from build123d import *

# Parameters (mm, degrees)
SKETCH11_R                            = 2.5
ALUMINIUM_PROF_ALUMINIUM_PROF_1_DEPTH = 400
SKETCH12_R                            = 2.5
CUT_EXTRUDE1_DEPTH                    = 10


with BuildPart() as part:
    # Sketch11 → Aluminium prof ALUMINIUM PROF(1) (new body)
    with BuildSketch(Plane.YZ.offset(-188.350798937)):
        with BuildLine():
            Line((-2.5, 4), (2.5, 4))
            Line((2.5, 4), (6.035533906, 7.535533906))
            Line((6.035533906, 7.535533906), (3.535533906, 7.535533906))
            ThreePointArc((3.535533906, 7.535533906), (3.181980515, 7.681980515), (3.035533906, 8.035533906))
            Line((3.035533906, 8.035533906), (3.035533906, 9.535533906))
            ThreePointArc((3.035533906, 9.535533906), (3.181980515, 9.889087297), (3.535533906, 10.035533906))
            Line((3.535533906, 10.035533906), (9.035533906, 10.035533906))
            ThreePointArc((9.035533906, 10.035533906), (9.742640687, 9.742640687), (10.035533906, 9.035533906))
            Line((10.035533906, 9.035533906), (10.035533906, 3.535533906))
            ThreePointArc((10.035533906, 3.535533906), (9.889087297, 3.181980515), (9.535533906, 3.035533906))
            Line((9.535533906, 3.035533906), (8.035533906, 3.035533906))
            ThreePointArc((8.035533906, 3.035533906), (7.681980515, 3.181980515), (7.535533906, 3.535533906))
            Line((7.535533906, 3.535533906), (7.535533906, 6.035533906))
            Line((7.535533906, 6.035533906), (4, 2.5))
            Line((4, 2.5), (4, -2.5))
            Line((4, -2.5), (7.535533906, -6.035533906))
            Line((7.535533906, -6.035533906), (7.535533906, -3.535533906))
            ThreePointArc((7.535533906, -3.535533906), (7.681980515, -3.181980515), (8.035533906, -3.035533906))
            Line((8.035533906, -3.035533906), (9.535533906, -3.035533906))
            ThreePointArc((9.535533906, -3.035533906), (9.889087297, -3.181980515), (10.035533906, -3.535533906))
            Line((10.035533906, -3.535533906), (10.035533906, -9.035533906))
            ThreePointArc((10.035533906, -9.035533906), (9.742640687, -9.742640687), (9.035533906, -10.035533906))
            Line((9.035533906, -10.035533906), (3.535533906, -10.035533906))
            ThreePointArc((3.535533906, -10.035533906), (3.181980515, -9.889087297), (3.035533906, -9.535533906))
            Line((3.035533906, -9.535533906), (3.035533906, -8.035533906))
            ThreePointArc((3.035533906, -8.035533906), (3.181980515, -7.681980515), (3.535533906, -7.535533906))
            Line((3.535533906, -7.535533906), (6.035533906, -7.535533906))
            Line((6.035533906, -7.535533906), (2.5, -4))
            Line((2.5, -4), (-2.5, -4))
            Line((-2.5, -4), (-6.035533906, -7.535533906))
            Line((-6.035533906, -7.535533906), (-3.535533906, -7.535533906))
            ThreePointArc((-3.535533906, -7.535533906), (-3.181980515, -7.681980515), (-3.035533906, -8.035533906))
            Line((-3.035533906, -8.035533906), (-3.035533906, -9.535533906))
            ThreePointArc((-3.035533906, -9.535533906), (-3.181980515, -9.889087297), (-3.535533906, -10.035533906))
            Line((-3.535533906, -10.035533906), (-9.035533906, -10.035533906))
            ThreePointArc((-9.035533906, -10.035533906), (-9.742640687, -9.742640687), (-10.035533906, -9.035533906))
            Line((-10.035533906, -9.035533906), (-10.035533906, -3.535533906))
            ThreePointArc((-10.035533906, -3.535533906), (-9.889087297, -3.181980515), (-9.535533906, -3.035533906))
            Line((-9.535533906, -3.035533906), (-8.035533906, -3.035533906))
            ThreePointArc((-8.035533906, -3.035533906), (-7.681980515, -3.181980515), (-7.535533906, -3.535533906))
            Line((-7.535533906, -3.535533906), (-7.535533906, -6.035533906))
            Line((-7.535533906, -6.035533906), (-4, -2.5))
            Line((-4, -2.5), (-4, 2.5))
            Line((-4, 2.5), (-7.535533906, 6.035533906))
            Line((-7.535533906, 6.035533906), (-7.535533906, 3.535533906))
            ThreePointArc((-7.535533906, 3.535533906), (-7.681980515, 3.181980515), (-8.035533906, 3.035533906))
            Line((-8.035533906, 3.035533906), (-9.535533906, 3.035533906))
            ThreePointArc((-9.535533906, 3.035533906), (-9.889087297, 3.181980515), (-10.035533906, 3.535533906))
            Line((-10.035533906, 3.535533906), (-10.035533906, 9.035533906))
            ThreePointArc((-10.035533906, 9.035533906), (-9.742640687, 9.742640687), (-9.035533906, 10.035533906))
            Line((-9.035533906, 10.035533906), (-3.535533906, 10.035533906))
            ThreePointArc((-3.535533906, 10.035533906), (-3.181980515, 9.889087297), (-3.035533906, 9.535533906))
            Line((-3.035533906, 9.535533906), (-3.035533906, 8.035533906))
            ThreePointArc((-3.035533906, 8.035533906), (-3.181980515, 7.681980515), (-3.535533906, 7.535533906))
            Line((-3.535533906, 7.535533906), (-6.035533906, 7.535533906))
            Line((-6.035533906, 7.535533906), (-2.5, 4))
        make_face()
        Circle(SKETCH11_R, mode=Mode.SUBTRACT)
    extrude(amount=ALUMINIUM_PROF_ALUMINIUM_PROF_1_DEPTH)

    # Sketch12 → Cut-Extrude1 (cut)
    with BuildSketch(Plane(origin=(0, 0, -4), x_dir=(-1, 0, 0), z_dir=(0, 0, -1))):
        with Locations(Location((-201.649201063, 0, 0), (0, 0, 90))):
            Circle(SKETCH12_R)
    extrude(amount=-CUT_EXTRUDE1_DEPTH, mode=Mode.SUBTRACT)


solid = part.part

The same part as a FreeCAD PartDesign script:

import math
import FreeCAD as App
import Part
import Sketcher

V = App.Vector
Q = App.Units.Quantity

doc = App.newDocument("Part")
body = doc.addObject("PartDesign::Body", "Body")

sketch1 = body.newObject("Sketcher::SketchObject", "Sketch")
sketch1.AttachmentSupport = (doc.getObject("YZ_Plane"), [""])
sketch1.MapMode = "FlatFace"
sketch1.AttachmentOffset = App.Placement(V(0, 0, -188.350799), App.Rotation())
sketch1.addGeometry([
    Part.LineSegment(V(2.5, 4, 0), V(-2.5, 4, 0)),
    Part.LineSegment(V(-2.5, 4, 0), V(-6.04, 7.54, 0)),
    Part.LineSegment(V(-6.04, 7.54, 0), V(-3.54, 7.54, 0)),
    Part.ArcOfCircle(Part.Circle(V(-3.54, 8.04, 0), V(0, 0, 1), 0.5), math.radians(-90), math.radians(0)),
    Part.LineSegment(V(-3.04, 8.04, 0), V(-3.04, 9.54, 0)),
    Part.ArcOfCircle(Part.Circle(V(-3.54, 9.54, 0), V(0, 0, 1), 0.5), math.radians(0), math.radians(90)),
    Part.LineSegment(V(-3.54, 10.04, 0), V(-9.04, 10.04, 0)),
    Part.ArcOfCircle(Part.Circle(V(-9.04, 9.04, 0), V(0, 0, 1), 1), math.radians(90), math.radians(180)),
    Part.LineSegment(V(-10.04, 9.04, 0), V(-10.04, 3.54, 0)),
    Part.ArcOfCircle(Part.Circle(V(-9.54, 3.54, 0), V(0, 0, 1), 0.5), math.radians(180), math.radians(270)),
    Part.LineSegment(V(-9.54, 3.04, 0), V(-8.04, 3.04, 0)),
    Part.ArcOfCircle(Part.Circle(V(-8.04, 3.54, 0), V(0, 0, 1), 0.5), math.radians(-90), math.radians(0)),
    Part.LineSegment(V(-7.54, 3.54, 0), V(-7.54, 6.04, 0)),
    Part.LineSegment(V(-7.54, 6.04, 0), V(-4, 2.5, 0)),
    Part.LineSegment(V(-4, 2.5, 0), V(-4, -2.5, 0)),
    Part.LineSegment(V(-4, -2.5, 0), V(-7.54, -6.04, 0)),
    Part.LineSegment(V(-7.54, -6.04, 0), V(-7.54, -3.54, 0)),
    Part.ArcOfCircle(Part.Circle(V(-8.04, -3.54, 0), V(0, 0, 1), 0.5), math.radians(0), math.radians(90)),
    Part.LineSegment(V(-8.04, -3.04, 0), V(-9.54, -3.04, 0)),
    Part.ArcOfCircle(Part.Circle(V(-9.54, -3.54, 0), V(0, 0, 1), 0.5), math.radians(90), math.radians(180)),
    Part.LineSegment(V(-10.04, -3.54, 0), V(-10.04, -9.04, 0)),
    Part.ArcOfCircle(Part.Circle(V(-9.04, -9.04, 0), V(0, 0, 1), 1), math.radians(-180), math.radians(-90)),
    Part.LineSegment(V(-9.04, -10.04, 0), V(-3.54, -10.04, 0)),
    Part.ArcOfCircle(Part.Circle(V(-3.54, -9.54, 0), V(0, 0, 1), 0.5), math.radians(-90), math.radians(0)),
    Part.LineSegment(V(-3.04, -9.54, 0), V(-3.04, -8.04, 0)),
    Part.ArcOfCircle(Part.Circle(V(-3.54, -8.04, 0), V(0, 0, 1), 0.5), math.radians(0), math.radians(90)),
    Part.LineSegment(V(-3.54, -7.54, 0), V(-6.04, -7.54, 0)),
    Part.LineSegment(V(-6.04, -7.54, 0), V(-2.5, -4, 0)),
    Part.LineSegment(V(-2.5, -4, 0), V(2.5, -4, 0)),
    Part.LineSegment(V(2.5, -4, 0), V(6.04, -7.54, 0)),
    Part.LineSegment(V(6.04, -7.54, 0), V(3.54, -7.54, 0)),
    Part.ArcOfCircle(Part.Circle(V(3.54, -8.04, 0), V(0, 0, 1), 0.5), math.radians(90), math.radians(180)),
    Part.LineSegment(V(3.04, -8.04, 0), V(3.04, -9.54, 0)),
    Part.ArcOfCircle(Part.Circle(V(3.54, -9.54, 0), V(0, 0, 1), 0.5), math.radians(180), math.radians(270)),
    Part.LineSegment(V(3.54, -10.04, 0), V(9.04, -10.04, 0)),
    Part.ArcOfCircle(Part.Circle(V(9.04, -9.04, 0), V(0, 0, 1), 1), math.radians(-90), math.radians(0)),
    Part.LineSegment(V(10.04, -9.04, 0), V(10.04, -3.54, 0)),
    Part.ArcOfCircle(Part.Circle(V(9.54, -3.54, 0), V(0, 0, 1), 0.5), math.radians(0), math.radians(90)),
    Part.LineSegment(V(9.54, -3.04, 0), V(8.04, -3.04, 0)),
    Part.ArcOfCircle(Part.Circle(V(8.04, -3.54, 0), V(0, 0, 1), 0.5), math.radians(90), math.radians(180)),
    Part.LineSegment(V(7.54, -3.54, 0), V(7.54, -6.04, 0)),
    Part.LineSegment(V(7.54, -6.04, 0), V(4, -2.5, 0)),
    Part.LineSegment(V(4, -2.5, 0), V(4, 2.5, 0)),
    Part.LineSegment(V(4, 2.5, 0), V(7.54, 6.04, 0)),
    Part.LineSegment(V(7.54, 6.04, 0), V(7.54, 3.54, 0)),
    Part.ArcOfCircle(Part.Circle(V(8.04, 3.54, 0), V(0, 0, 1), 0.5), math.radians(180), math.radians(270)),
    Part.LineSegment(V(8.04, 3.04, 0), V(9.54, 3.04, 0)),
    Part.ArcOfCircle(Part.Circle(V(9.54, 3.54, 0), V(0, 0, 1), 0.5), math.radians(-90), math.radians(0)),
    Part.LineSegment(V(10.04, 3.54, 0), V(10.04, 9.04, 0)),
    Part.ArcOfCircle(Part.Circle(V(9.04, 9.04, 0), V(0, 0, 1), 1), math.radians(0), math.radians(90)),
    Part.LineSegment(V(9.04, 10.04, 0), V(3.54, 10.04, 0)),
    Part.ArcOfCircle(Part.Circle(V(3.54, 9.54, 0), V(0, 0, 1), 0.5), math.radians(90), math.radians(180)),
    Part.LineSegment(V(3.04, 9.54, 0), V(3.04, 8.04, 0)),
    Part.ArcOfCircle(Part.Circle(V(3.54, 8.04, 0), V(0, 0, 1), 0.5), math.radians(180), math.radians(270)),
    Part.LineSegment(V(3.54, 7.54, 0), V(6.04, 7.54, 0)),
    Part.LineSegment(V(6.04, 7.54, 0), V(2.5, 4, 0)),
    Part.Circle(V(0, 0, 0), V(0, 0, 1), 2.5),
], False)
sketch1.addConstraint([
    Sketcher.Constraint("Coincident", 0, 2, 1, 1),
    Sketcher.Constraint("Coincident", 1, 2, 2, 1),
    Sketcher.Constraint("Tangent", 2, 2, 3, 1),
    Sketcher.Constraint("Tangent", 3, 2, 4, 1),
    Sketcher.Constraint("Tangent", 4, 2, 5, 1),
    Sketcher.Constraint("Tangent", 5, 2, 6, 1),
    Sketcher.Constraint("Tangent", 6, 2, 7, 1),
    Sketcher.Constraint("Tangent", 7, 2, 8, 1),
    Sketcher.Constraint("Tangent", 8, 2, 9, 1),
    Sketcher.Constraint("Tangent", 9, 2, 10, 1),
    Sketcher.Constraint("Tangent", 10, 2, 11, 1),
    Sketcher.Constraint("Tangent", 11, 2, 12, 1),
    Sketcher.Constraint("Coincident", 12, 2, 13, 1),
    Sketcher.Constraint("Coincident", 13, 2, 14, 1),
    Sketcher.Constraint("Coincident", 14, 2, 15, 1),
    Sketcher.Constraint("Coincident", 15, 2, 16, 1),
    Sketcher.Constraint("Tangent", 16, 2, 17, 1),
    Sketcher.Constraint("Tangent", 17, 2, 18, 1),
    Sketcher.Constraint("Tangent", 18, 2, 19, 1),
    Sketcher.Constraint("Tangent", 19, 2, 20, 1),
    Sketcher.Constraint("Tangent", 20, 2, 21, 1),
    Sketcher.Constraint("Tangent", 21, 2, 22, 1),
    Sketcher.Constraint("Tangent", 22, 2, 23, 1),
    Sketcher.Constraint("Tangent", 23, 2, 24, 1),
    Sketcher.Constraint("Tangent", 24, 2, 25, 1),
    Sketcher.Constraint("Tangent", 25, 2, 26, 1),
    Sketcher.Constraint("Coincident", 26, 2, 27, 1),
    Sketcher.Constraint("Coincident", 27, 2, 28, 1),
    Sketcher.Constraint("Coincident", 28, 2, 29, 1),
    Sketcher.Constraint("Coincident", 29, 2, 30, 1),
    Sketcher.Constraint("Tangent", 30, 2, 31, 1),
    Sketcher.Constraint("Tangent", 31, 2, 32, 1),
    Sketcher.Constraint("Tangent", 32, 2, 33, 1),
    Sketcher.Constraint("Tangent", 33, 2, 34, 1),
    Sketcher.Constraint("Tangent", 34, 2, 35, 1),
    Sketcher.Constraint("Tangent", 35, 2, 36, 1),
    Sketcher.Constraint("Tangent", 36, 2, 37, 1),
    Sketcher.Constraint("Tangent", 37, 2, 38, 1),
    Sketcher.Constraint("Tangent", 38, 2, 39, 1),
    Sketcher.Constraint("Tangent", 39, 2, 40, 1),
    Sketcher.Constraint("Coincident", 40, 2, 41, 1),
    Sketcher.Constraint("Coincident", 41, 2, 42, 1),
    Sketcher.Constraint("Coincident", 42, 2, 43, 1),
    Sketcher.Constraint("Coincident", 43, 2, 44, 1),
    Sketcher.Constraint("Tangent", 44, 2, 45, 1),
    Sketcher.Constraint("Tangent", 45, 2, 46, 1),
    Sketcher.Constraint("Tangent", 46, 2, 47, 1),
    Sketcher.Constraint("Tangent", 47, 2, 48, 1),
    Sketcher.Constraint("Tangent", 48, 2, 49, 1),
    Sketcher.Constraint("Tangent", 49, 2, 50, 1),
    Sketcher.Constraint("Tangent", 50, 2, 51, 1),
    Sketcher.Constraint("Tangent", 51, 2, 52, 1),
    Sketcher.Constraint("Tangent", 52, 2, 53, 1),
    Sketcher.Constraint("Tangent", 53, 2, 54, 1),
    Sketcher.Constraint("Coincident", 54, 2, 55, 1),
    Sketcher.Constraint("Coincident", 55, 2, 0, 1),
    Sketcher.Constraint("Horizontal", 0),
    Sketcher.Constraint("Horizontal", 2),
    Sketcher.Constraint("Vertical", 4),
    Sketcher.Constraint("Horizontal", 6),
    Sketcher.Constraint("Vertical", 8),
    Sketcher.Constraint("Horizontal", 10),
    Sketcher.Constraint("Vertical", 12),
    Sketcher.Constraint("Vertical", 14),
    Sketcher.Constraint("Vertical", 16),
    Sketcher.Constraint("Horizontal", 18),
    Sketcher.Constraint("Vertical", 20),
    Sketcher.Constraint("Horizontal", 22),
    Sketcher.Constraint("Vertical", 24),
    Sketcher.Constraint("Horizontal", 26),
    Sketcher.Constraint("Horizontal", 28),
    Sketcher.Constraint("Horizontal", 30),
    Sketcher.Constraint("Vertical", 32),
    Sketcher.Constraint("Horizontal", 34),
    Sketcher.Constraint("Vertical", 36),
    Sketcher.Constraint("Horizontal", 38),
    Sketcher.Constraint("Vertical", 40),
    Sketcher.Constraint("Vertical", 42),
    Sketcher.Constraint("Vertical", 44),
    Sketcher.Constraint("Horizontal", 46),
    Sketcher.Constraint("Vertical", 48),
    Sketcher.Constraint("Horizontal", 50),
    Sketcher.Constraint("Vertical", 52),
    Sketcher.Constraint("Horizontal", 54),
    Sketcher.Constraint("Coincident", 56, 3, -1, 1),
    Sketcher.Constraint("Equal", 3, 5),
    Sketcher.Constraint("Equal", 5, 9),
    Sketcher.Constraint("Equal", 9, 11),
    Sketcher.Constraint("Equal", 11, 17),
    Sketcher.Constraint("Equal", 17, 19),
    Sketcher.Constraint("Equal", 7, 21),
    Sketcher.Constraint("Equal", 19, 23),
    Sketcher.Constraint("Equal", 23, 25),
    Sketcher.Constraint("Equal", 25, 31),
    Sketcher.Constraint("Equal", 31, 33),
    Sketcher.Constraint("Equal", 21, 35),
    Sketcher.Constraint("Equal", 33, 37),
    Sketcher.Constraint("Equal", 37, 39),
    Sketcher.Constraint("Equal", 39, 45),
    Sketcher.Constraint("Equal", 45, 47),
    Sketcher.Constraint("Equal", 35, 49),
    Sketcher.Constraint("Equal", 47, 51),
    Sketcher.Constraint("Equal", 51, 53),
    Sketcher.Constraint("Symmetric", 3, 3, 31, 3, -1, 1),
    Sketcher.Constraint("Symmetric", 7, 3, 35, 3, -1, 1),
    Sketcher.Constraint("Symmetric", 11, 3, 39, 3, -1, 1),
    Sketcher.Constraint("Symmetric", 17, 3, 45, 3, -1, 1),
    Sketcher.Constraint("Symmetric", 21, 3, 49, 3, -1, 1),
    Sketcher.Constraint("Symmetric", 25, 3, 53, 3, -1, 1),
    Sketcher.Constraint("Symmetric", 0, 2, 28, 2, -1, 1),
    Sketcher.Constraint("Symmetric", 13, 2, 41, 2, -1, 1),
    Sketcher.Constraint("Symmetric", 25, 3, 31, 3, -2),
    Sketcher.Constraint("Symmetric", 21, 3, 35, 3, -2),
    Sketcher.Constraint("Symmetric", 17, 3, 39, 3, -2),
    Sketcher.Constraint("Parallel", 1, 13),
    Sketcher.Constraint("Perpendicular", 13, 15),
    Sketcher.Constraint("Parallel", 15, 27),
    Sketcher.Constraint("Perpendicular", 27, 29),
    Sketcher.Constraint("Parallel", 29, 41),
    Sketcher.Constraint("Perpendicular", 41, 43),
    Sketcher.Constraint("Parallel", 43, 55),
    Sketcher.Constraint("Horizontal", 15, 2, 40, 2),
    Sketcher.Constraint("Horizontal", 14, 2, 41, 2),
    Sketcher.Constraint("Horizontal", 13, 2, 42, 2),
    Sketcher.Constraint("Vertical", 1, 2, 26, 2),
    Sketcher.Constraint("Vertical", 29, 2, 54, 2),
    Sketcher.Constraint("Equal", 46, 4),
    Sketcher.Constraint("Equal", 50, 8),
    Sketcher.Constraint("Equal", 54, 12),
    Sketcher.Constraint("Equal", 28, 14),
    Sketcher.Constraint("Equal", 1, 13),
    Sketcher.Constraint("Diameter", 56, Q("5 mm")),
    Sketcher.Constraint("Radius", 7, Q("1 mm")),
    Sketcher.Constraint("Radius", 3, Q("0.5 mm")),
    Sketcher.Constraint("DistanceX", 0, 2, 0, 1, Q("5 mm")),
    Sketcher.Constraint("Distance", 1, Q("5 mm")),
    Sketcher.Constraint("DistanceX", 2, 1, 2, 2, Q("2.5 mm")),
    Sketcher.Constraint("DistanceX", 6, 2, 6, 1, Q("5.5 mm")),
    Sketcher.Constraint("DistanceX", 10, 1, 10, 2, Q("1.5 mm")),
])
pad1 = body.newObject("PartDesign::Pad", "Pad")
pad1.Profile = sketch1
pad1.Length = 400

sketch2 = body.newObject("Sketcher::SketchObject", "Sketch001")
sketch2.AttachmentSupport = (doc.getObject("XY_Plane"), [""])
sketch2.MapMode = "FlatFace"
sketch2.AttachmentOffset = App.Placement(V(0, 0, -4), App.Rotation())
sketch2.addGeometry(Part.Circle(V(201.6, 0, 0), V(0, 0, 1), 2.5), False)
sketch2.addConstraint([
    Sketcher.Constraint("PointOnObject", 0, 3, -1),
    Sketcher.Constraint("Diameter", 0, Q("5 mm")),
    Sketcher.Constraint("DistanceX", -1, 1, 0, 3, Q("201.649201 mm")),
])
pocket1 = body.newObject("PartDesign::Pocket", "Pocket")
pocket1.Profile = sketch2
pocket1.Length = 10
pocket1.Reversed = True

doc.recompute()
